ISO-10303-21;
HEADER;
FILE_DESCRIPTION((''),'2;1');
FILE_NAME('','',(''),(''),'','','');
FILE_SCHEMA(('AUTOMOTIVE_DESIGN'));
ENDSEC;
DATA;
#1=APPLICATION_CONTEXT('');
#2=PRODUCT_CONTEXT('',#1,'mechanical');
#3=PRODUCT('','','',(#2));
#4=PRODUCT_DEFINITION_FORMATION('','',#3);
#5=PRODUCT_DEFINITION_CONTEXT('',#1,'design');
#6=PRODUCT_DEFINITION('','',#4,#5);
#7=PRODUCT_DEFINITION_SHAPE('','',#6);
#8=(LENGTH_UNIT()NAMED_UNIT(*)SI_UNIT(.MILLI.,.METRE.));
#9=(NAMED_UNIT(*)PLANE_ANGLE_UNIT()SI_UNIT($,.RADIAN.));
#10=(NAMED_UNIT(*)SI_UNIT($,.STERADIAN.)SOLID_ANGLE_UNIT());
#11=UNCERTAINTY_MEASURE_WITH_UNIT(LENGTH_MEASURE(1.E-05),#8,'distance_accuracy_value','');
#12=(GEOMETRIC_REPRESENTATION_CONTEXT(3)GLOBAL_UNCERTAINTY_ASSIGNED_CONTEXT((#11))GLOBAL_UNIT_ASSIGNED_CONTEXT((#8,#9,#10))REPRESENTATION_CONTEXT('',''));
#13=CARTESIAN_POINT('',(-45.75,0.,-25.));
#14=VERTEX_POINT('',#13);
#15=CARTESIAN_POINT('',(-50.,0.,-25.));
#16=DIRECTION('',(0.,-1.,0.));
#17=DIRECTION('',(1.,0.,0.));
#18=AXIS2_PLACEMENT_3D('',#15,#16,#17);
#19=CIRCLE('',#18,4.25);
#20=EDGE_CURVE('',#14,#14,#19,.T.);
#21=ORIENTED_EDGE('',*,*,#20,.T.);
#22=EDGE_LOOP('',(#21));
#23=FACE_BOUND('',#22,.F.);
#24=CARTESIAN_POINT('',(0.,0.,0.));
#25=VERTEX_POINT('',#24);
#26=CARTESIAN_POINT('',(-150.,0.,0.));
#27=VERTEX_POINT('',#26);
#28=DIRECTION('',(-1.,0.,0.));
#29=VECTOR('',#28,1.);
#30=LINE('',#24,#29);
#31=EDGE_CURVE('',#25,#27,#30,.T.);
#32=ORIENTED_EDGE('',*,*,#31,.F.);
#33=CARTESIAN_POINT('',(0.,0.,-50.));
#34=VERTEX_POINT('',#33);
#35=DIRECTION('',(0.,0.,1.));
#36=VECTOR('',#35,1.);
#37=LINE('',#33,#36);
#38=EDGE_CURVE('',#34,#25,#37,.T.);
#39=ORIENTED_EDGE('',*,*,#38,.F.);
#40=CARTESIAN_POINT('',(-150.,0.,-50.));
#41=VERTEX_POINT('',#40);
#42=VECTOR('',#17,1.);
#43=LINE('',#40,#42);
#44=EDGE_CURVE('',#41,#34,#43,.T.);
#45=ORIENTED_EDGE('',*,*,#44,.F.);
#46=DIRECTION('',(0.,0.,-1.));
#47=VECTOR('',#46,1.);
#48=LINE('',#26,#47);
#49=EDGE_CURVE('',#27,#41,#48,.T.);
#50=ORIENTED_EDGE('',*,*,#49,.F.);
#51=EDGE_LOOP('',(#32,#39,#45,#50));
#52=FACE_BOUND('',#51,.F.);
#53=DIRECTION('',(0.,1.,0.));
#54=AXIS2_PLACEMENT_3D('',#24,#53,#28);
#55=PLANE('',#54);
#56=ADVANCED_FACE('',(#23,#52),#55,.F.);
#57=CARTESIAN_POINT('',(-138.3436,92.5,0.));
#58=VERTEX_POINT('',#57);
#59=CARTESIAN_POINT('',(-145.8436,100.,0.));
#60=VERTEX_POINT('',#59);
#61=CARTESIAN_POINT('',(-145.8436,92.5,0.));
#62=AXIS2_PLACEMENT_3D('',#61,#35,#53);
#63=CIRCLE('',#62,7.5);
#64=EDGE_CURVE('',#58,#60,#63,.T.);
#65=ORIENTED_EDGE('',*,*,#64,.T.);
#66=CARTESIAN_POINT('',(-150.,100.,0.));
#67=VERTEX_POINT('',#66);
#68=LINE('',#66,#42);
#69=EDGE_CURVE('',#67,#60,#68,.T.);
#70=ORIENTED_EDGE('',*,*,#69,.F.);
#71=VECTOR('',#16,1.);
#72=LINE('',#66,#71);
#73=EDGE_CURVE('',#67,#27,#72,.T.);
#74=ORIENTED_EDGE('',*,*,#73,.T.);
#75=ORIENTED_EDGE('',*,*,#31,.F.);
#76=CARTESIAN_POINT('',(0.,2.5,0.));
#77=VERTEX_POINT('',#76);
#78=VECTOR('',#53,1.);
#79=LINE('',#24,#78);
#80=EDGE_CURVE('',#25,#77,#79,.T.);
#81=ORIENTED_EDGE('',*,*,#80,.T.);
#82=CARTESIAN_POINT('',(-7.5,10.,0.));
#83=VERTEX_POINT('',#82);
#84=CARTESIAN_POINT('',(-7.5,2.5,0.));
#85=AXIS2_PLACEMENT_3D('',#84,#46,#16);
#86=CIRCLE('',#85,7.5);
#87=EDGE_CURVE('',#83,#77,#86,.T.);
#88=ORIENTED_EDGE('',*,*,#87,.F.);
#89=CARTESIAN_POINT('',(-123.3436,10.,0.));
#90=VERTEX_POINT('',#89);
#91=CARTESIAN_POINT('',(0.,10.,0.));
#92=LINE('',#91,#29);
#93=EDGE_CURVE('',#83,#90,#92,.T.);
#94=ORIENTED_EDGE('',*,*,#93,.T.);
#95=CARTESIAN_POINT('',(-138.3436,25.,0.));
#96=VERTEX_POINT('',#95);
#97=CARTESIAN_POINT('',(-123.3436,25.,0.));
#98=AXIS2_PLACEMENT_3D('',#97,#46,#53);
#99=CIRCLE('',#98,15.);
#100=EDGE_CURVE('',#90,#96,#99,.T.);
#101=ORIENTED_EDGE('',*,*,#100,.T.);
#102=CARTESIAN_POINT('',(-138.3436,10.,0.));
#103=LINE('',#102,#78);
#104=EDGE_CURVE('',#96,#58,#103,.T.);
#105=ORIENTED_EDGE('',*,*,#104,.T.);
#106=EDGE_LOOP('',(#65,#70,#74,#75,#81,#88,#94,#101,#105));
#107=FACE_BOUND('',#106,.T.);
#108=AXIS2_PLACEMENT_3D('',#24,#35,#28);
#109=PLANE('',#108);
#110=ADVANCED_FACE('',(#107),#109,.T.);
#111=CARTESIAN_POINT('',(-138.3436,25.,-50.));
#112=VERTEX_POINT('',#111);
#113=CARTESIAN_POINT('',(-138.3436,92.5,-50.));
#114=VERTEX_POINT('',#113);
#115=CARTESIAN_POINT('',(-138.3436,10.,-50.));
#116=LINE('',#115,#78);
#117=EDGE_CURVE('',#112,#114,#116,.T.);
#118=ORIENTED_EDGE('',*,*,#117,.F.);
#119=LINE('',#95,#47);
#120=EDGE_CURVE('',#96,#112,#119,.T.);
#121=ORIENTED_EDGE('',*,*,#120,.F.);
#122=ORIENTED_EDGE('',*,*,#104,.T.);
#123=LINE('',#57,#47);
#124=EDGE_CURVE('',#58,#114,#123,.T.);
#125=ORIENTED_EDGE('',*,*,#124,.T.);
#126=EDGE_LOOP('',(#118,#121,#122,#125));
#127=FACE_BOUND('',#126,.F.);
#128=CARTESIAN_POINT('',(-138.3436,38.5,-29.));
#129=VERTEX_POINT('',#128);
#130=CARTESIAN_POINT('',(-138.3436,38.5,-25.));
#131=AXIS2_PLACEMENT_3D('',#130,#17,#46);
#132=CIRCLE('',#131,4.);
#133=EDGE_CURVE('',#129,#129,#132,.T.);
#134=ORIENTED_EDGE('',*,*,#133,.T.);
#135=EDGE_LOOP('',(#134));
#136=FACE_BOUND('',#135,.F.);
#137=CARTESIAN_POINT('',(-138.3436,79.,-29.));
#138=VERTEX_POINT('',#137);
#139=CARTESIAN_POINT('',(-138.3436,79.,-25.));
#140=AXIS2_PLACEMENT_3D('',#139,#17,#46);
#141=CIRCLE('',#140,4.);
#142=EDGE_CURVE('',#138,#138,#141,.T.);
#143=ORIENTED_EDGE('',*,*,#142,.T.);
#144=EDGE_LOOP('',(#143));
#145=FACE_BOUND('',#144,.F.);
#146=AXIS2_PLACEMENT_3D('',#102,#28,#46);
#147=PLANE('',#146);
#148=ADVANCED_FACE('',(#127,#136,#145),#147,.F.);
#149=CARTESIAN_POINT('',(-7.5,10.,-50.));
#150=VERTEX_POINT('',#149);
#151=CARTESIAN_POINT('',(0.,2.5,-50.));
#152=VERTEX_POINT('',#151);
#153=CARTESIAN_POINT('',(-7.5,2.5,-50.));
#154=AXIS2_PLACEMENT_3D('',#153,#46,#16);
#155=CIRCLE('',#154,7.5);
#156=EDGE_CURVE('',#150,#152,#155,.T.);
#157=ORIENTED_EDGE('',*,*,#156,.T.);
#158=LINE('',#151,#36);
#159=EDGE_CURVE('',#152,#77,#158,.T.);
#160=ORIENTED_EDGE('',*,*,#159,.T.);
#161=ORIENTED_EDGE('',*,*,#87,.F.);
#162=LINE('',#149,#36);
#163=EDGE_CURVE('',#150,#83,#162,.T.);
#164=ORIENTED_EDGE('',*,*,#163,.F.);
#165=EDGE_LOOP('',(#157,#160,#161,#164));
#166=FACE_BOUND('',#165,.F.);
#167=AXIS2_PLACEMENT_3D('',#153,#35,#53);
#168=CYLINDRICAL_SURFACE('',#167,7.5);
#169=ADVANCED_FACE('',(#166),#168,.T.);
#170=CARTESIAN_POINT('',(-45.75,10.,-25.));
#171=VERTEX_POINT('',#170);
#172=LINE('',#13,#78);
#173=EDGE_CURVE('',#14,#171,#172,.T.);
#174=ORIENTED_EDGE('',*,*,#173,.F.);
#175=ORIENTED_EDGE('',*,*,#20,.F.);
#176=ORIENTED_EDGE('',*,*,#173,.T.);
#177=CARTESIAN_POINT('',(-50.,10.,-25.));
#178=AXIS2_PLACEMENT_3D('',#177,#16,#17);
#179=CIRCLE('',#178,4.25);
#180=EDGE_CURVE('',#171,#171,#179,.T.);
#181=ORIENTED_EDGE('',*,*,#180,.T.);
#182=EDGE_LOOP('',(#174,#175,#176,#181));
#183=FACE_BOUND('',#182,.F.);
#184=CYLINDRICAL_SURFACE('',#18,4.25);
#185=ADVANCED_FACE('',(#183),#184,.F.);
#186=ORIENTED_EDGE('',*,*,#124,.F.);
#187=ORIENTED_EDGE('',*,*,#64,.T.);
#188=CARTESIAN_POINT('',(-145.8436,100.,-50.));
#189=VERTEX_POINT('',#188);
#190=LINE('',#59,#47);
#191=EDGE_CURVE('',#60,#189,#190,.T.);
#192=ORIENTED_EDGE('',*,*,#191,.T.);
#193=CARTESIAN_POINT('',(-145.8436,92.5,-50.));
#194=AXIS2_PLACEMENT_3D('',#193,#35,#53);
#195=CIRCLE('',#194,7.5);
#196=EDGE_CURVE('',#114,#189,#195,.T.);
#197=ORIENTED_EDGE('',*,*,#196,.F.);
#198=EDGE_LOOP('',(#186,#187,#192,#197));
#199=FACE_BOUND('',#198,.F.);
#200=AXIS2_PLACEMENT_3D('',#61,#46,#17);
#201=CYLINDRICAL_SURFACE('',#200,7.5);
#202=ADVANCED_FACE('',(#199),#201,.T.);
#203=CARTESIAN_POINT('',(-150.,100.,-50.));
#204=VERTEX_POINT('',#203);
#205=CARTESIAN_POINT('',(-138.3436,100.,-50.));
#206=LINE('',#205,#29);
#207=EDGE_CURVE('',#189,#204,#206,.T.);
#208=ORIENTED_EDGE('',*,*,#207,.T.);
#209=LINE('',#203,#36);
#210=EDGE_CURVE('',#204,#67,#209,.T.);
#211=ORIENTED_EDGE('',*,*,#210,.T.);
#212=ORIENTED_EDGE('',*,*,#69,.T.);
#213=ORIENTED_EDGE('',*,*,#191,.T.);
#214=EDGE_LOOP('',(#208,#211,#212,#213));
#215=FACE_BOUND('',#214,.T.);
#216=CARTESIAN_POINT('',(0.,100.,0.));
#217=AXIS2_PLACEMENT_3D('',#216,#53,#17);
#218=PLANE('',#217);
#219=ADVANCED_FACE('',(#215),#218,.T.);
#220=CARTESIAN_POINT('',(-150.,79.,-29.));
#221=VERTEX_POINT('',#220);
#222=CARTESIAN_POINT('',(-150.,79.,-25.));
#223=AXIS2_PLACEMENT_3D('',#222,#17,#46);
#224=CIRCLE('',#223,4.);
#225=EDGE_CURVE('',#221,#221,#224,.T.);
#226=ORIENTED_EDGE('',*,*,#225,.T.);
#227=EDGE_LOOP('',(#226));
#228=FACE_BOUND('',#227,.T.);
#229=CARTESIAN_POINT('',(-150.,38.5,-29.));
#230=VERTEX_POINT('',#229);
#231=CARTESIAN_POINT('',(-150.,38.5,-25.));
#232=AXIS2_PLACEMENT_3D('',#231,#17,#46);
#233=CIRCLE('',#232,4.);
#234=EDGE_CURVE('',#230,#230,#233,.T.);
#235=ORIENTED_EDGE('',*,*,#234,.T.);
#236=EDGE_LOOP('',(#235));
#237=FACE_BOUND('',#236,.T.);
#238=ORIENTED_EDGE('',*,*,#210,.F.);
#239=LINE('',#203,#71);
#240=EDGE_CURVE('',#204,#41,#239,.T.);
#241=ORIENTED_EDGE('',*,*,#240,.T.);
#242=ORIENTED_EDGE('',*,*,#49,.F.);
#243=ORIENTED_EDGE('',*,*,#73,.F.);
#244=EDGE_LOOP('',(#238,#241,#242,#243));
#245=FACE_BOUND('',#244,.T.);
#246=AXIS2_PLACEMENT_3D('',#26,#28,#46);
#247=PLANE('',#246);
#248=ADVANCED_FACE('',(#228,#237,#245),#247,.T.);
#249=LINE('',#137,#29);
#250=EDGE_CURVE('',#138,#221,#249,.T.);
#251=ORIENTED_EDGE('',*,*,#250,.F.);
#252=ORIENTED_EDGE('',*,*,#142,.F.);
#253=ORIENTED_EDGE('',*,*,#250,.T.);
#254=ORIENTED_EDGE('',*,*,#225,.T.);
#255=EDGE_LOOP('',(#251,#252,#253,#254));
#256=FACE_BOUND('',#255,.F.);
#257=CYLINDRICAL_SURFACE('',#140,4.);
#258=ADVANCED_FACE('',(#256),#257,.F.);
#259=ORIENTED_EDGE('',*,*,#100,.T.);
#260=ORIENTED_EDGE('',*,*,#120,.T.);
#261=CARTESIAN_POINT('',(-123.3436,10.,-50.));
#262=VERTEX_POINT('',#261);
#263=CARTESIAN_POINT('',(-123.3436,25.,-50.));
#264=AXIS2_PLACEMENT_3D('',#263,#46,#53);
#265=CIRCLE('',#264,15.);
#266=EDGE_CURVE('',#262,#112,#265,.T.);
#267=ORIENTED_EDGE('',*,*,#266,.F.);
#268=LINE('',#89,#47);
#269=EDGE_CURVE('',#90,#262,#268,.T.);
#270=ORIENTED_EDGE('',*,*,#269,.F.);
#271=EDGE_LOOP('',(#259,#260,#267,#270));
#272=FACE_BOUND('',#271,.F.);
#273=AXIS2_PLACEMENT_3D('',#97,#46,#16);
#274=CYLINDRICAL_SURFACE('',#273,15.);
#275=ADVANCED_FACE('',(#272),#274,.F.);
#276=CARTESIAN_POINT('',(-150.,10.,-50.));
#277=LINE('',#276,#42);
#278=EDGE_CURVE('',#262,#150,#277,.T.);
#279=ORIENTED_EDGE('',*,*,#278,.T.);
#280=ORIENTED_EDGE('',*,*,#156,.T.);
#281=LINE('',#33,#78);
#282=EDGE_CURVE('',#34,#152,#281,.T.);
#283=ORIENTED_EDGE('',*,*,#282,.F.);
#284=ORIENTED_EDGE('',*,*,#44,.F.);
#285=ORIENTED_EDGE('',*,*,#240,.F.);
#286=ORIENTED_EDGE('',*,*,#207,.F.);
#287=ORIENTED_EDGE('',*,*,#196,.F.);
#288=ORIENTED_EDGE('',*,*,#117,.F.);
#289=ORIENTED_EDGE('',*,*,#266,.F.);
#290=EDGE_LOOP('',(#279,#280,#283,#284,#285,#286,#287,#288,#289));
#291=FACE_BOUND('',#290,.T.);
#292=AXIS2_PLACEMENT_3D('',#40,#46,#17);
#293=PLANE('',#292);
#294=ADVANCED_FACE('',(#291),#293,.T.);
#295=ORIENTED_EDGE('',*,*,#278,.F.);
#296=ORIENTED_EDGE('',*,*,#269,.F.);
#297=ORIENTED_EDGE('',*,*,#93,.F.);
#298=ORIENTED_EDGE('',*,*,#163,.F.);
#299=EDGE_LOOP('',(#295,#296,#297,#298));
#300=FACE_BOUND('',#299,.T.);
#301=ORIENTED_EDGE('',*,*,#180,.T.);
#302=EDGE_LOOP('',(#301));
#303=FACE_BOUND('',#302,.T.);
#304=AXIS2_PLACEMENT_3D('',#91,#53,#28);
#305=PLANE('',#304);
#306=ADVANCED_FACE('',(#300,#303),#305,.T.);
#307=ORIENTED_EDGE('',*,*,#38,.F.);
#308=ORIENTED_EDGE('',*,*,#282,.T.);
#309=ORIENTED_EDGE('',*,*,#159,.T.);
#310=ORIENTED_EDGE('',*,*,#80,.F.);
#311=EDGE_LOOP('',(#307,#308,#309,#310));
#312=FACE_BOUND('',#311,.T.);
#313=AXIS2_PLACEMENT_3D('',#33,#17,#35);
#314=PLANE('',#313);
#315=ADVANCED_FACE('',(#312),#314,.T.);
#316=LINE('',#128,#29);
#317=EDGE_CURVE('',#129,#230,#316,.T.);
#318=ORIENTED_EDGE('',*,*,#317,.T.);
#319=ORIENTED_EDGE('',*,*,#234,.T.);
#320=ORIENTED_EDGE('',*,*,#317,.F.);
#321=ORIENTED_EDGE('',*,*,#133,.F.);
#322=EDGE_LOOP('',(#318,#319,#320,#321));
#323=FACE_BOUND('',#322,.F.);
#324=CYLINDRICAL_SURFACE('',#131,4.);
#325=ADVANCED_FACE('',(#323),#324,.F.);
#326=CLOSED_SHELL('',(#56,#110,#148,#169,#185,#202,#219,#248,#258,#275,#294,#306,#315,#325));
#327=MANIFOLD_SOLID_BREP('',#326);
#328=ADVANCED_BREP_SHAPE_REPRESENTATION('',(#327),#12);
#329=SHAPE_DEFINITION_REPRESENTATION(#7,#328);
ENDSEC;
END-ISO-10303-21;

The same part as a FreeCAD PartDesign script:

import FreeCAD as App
import Part
import Sketcher

V = App.Vector


def edges_at(feature, points):
    """Names of the edges that pass closest to the given points."""
    edges = feature.Shape.Edges
    near = lambda p: min(range(len(edges)), key=lambda i: edges[i].distToShape(Part.Vertex(*p))[0])
    return sorted({f"Edge{near(p) + 1}" for p in points})

doc = App.newDocument("Part")
body = doc.addObject("PartDesign::Body", "Body")

# Sketch on XZ plane
sketch1 = body.newObject("Sketcher::SketchObject", "Sketch")
sketch1.AttachmentSupport = (doc.getObject("XZ_Plane"), [""])
sketch1.MapMode = "FlatFace"
sketch1.addGeometry([
    Part.LineSegment(V(-150, 0, 0), V(0, 0, 0)),
    Part.LineSegment(V(0, 0, 0), V(0, -50, 0)),
    Part.LineSegment(V(0, -50, 0), V(-150, -50, 0)),
    Part.LineSegment(V(-150, -50, 0), V(-150, 0, 0)),
], False)
sketch1.addConstraint([
    Sketcher.Constraint("Coincident", 0, 2, 1, 1),
    Sketcher.Constraint("Coincident", 1, 2, 2, 1),
    Sketcher.Constraint("Coincident", 2, 2, 3, 1),
    Sketcher.Constraint("Coincident", 3, 2, 0, 1),
    Sketcher.Constraint("Horizontal", 0),
    Sketcher.Constraint("Vertical", 1),
    Sketcher.Constraint("Horizontal", 2),
    Sketcher.Constraint("Vertical", 3),
    Sketcher.Constraint("Coincident", 0, 2, -1, 1),
    Sketcher.Constraint("DistanceX", 0, 1, 0, 2, 150.0),
    Sketcher.Constraint("DistanceY", 1, 2, 1, 1, 50.0),
])
pad1 = body.newObject("PartDesign::Pad", "Pad")
pad1.Profile = sketch1
pad1.Length = 10
pad1.Reversed = True

# Sketch on XZ plane
sketch2 = body.newObject("Sketcher::SketchObject", "Sketch001")
sketch2.AttachmentSupport = (doc.getObject("XZ_Plane"), [""])
sketch2.MapMode = "FlatFace"
sketch2.AttachmentOffset = App.Placement(V(0, 0, -10), App.Rotation())
sketch2.addGeometry([
    Part.LineSegment(V(-138, -50, 0), V(-150, -50, 0)),
    Part.LineSegment(V(-150, -50, 0), V(-150, 0, 0)),
    Part.LineSegment(V(-150, 0, 0), V(-138, 0, 0)),
    Part.LineSegment(V(-138, 0, 0), V(-138, -50, 0)),
], False)
sketch2.addConstraint([
    Sketcher.Constraint("Coincident", 0, 2, 1, 1),
    Sketcher.Constraint("Coincident", 1, 2, 2, 1),
    Sketcher.Constraint("Coincident", 2, 2, 3, 1),
    Sketcher.Constraint("Coincident", 3, 2, 0, 1),
    Sketcher.Constraint("Horizontal", 0),
    Sketcher.Constraint("Vertical", 1),
    Sketcher.Constraint("Horizontal", 2),
    Sketcher.Constraint("Vertical", 3),
    Sketcher.Constraint("PointOnObject", 1, 2, -1),
    Sketcher.Constraint("DistanceY", 1, 1, 1, 2, 50.0),
    Sketcher.Constraint("DistanceX", 0, 2, -1, 1, 150.0),
    Sketcher.Constraint("DistanceX", 0, 2, 0, 1, 11.6564),
])
pad2 = body.newObject("PartDesign::Pad", "Pad001")
pad2.Profile = sketch2
pad2.Length = 90
pad2.Reversed = True
doc.recompute()

fillet = body.newObject("PartDesign::Fillet", "Fillet")
fillet.Base = (pad2, edges_at(pad2, [(-138.344, 10, -25)]))
fillet.Radius = 15
doc.recompute()

fillet2 = body.newObject("PartDesign::Fillet", "Fillet001")
fillet2.Base = (fillet, edges_at(fillet, [(-138.344, 100, -25), (0, 10, -25)]))
fillet2.Radius = 7.5

# Sketch on YZ plane
sketch3 = body.newObject("Sketcher::SketchObject", "Sketch002")
sketch3.AttachmentSupport = (doc.getObject("YZ_Plane"), [""])
sketch3.MapMode = "FlatFace"
sketch3.AttachmentOffset = App.Placement(V(0, 0, -138.3436), App.Rotation())
sketch3.addGeometry([
    Part.Circle(V(79, -25, 0), V(0, 0, 1), 4),
    Part.Circle(V(38.5, -25, 0), V(0, 0, 1), 4),
], False)
sketch3.addConstraint([
    Sketcher.Constraint("Equal", 0, 1),
    Sketcher.Constraint("Horizontal", 0, 3, 1, 3),
    Sketcher.Constraint("Diameter", 0, 8.0),
    Sketcher.Constraint("DistanceY", 0, 3, -1, 1, 25.0),
    Sketcher.Constraint("DistanceX", 1, 3, 0, 3, 40.5),
    Sketcher.Constraint("DistanceX", -1, 1, 0, 3, 79.0),
])
pocket1 = body.newObject("PartDesign::Pocket", "Pocket")
pocket1.Profile = sketch3
pocket1.Type = "UpToFirst"

# Sketch on XZ plane
sketch4 = body.newObject("Sketcher::SketchObject", "Sketch003")
sketch4.AttachmentSupport = (doc.getObject("XZ_Plane"), [""])
sketch4.MapMode = "FlatFace"
sketch4.addGeometry(Part.Circle(V(-50, -25, 0), V(0, 0, 1), 4.2), False)
sketch4.addConstraint([
    Sketcher.Constraint("Diameter", 0, 8.5),
    Sketcher.Constraint("DistanceX", 0, 3, -1, 1, 50.0),
    Sketcher.Constraint("DistanceY", 0, 3, -1, 1, 25.0),
])
pocket2 = body.newObject("PartDesign::Pocket", "Pocket001")
pocket2.Profile = sketch4
pocket2.Length = 10

doc.recompute()
